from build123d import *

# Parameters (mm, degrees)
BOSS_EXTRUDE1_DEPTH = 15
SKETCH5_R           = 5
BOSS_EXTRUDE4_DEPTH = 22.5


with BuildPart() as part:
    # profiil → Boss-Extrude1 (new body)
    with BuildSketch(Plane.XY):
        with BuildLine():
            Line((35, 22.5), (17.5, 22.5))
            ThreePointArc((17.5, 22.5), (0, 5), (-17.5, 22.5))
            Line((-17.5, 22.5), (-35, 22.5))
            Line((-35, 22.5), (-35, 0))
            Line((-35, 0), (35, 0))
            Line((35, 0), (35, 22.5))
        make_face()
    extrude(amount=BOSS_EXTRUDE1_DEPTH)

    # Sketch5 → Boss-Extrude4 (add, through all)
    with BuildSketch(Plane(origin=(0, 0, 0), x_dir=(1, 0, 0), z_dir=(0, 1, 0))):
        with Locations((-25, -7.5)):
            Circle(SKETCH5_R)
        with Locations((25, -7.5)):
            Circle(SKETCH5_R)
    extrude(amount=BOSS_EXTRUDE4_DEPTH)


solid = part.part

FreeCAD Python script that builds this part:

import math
import FreeCAD as App
import Part
import Sketcher
from FreeCAD import Vector

doc = App.newDocument("Part")
body = doc.addObject("PartDesign::Body", "Body")

# Sketch on XY plane
sketch1 = body.newObject("Sketcher::SketchObject", "Sketch")
sketch1.AttachmentSupport = (doc.getObject("XY_Plane"), [""])
sketch1.MapMode = "FlatFace"
sketch1.addGeometry(Part.LineSegment(Vector(35, 22, 0), Vector(18, 22, 0)), False)
sketch1.addGeometry(Part.ArcOfCircle(Part.Circle(Vector(0, 22, 0), Vector(0, 0, 1), 18), math.radians(180), math.radians(360)), False)
sketch1.addGeometry(Part.LineSegment(Vector(-18, 22, 0), Vector(-35, 22, 0)), False)
sketch1.addGeometry(Part.LineSegment(Vector(-35, 22, 0), Vector(-35, 0, 0)), False)
sketch1.addGeometry(Part.LineSegment(Vector(-35, 0, 0), Vector(35, 0, 0)), False)
sketch1.addGeometry(Part.LineSegment(Vector(35, 0, 0), Vector(35, 22, 0)), False)
sketch1.addConstraint(Sketcher.Constraint("Coincident", 0, 2, 1, 2))
sketch1.addConstraint(Sketcher.Constraint("Coincident", 1, 1, 2, 1))
sketch1.addConstraint(Sketcher.Constraint("Coincident", 2, 2, 3, 1))
sketch1.addConstraint(Sketcher.Constraint("Coincident", 3, 2, 4, 1))
sketch1.addConstraint(Sketcher.Constraint("Coincident", 4, 2, 5, 1))
sketch1.addConstraint(Sketcher.Constraint("Coincident", 5, 2, 0, 1))
sketch1.addConstraint(Sketcher.Constraint("Horizontal", 0))
sketch1.addConstraint(Sketcher.Constraint("Horizontal", 2))
sketch1.addConstraint(Sketcher.Constraint("Vertical", 3))
sketch1.addConstraint(Sketcher.Constraint("Horizontal", 4))
sketch1.addConstraint(Sketcher.Constraint("Vertical", 5))
sketch1.addConstraint(Sketcher.Constraint("Symmetric", 3, 2, 4, 2, -1, 1))
sketch1.addConstraint(Sketcher.Constraint("Symmetric", 0, 2, 1, 1, -2))
sketch1.addConstraint(Sketcher.Constraint("Horizontal", 1, 3, 0, 2))
sketch1.addConstraint(Sketcher.Constraint("Radius", 1, 17.5))
sketch1.addConstraint(Sketcher.Constraint("DistanceX", 4, 1, 4, 2, 70.0))
sketch1.addConstraint(Sketcher.Constraint("DistanceY", 3, 2, 3, 1, 22.5))
pad1 = body.newObject("PartDesign::Pad", "Pad")
pad1.Profile = sketch1
pad1.Length = 15

# Sketch on XZ plane
sketch2 = body.newObject("Sketcher::SketchObject", "Sketch001")
sketch2.AttachmentSupport = (doc.getObject("XZ_Plane"), [""])
sketch2.MapMode = "FlatFace"
sketch2.addGeometry(Part.Circle(Vector(-25, 8, 0), Vector(0, 0, 1), 5), False)
sketch2.addGeometry(Part.Circle(Vector(25, 8, 0), Vector(0, 0, 1), 5), False)
sketch2.addConstraint(Sketcher.Constraint("Equal", 0, 1))
sketch2.addConstraint(Sketcher.Constraint("Symmetric", 0, 3, 1, 3, -2))
sketch2.addConstraint(Sketcher.Constraint("Diameter", 0, 10.0))
sketch2.addConstraint(Sketcher.Constraint("DistanceX", 0, 3, -1, 1, 25.0))
sketch2.addConstraint(Sketcher.Constraint("DistanceY", -1, 1, 0, 3, 7.5))
pad2 = body.newObject("PartDesign::Pad", "Pad001")
pad2.Profile = sketch2
pad2.Length = 22.5
pad2.Reversed = True

doc.recompute()
